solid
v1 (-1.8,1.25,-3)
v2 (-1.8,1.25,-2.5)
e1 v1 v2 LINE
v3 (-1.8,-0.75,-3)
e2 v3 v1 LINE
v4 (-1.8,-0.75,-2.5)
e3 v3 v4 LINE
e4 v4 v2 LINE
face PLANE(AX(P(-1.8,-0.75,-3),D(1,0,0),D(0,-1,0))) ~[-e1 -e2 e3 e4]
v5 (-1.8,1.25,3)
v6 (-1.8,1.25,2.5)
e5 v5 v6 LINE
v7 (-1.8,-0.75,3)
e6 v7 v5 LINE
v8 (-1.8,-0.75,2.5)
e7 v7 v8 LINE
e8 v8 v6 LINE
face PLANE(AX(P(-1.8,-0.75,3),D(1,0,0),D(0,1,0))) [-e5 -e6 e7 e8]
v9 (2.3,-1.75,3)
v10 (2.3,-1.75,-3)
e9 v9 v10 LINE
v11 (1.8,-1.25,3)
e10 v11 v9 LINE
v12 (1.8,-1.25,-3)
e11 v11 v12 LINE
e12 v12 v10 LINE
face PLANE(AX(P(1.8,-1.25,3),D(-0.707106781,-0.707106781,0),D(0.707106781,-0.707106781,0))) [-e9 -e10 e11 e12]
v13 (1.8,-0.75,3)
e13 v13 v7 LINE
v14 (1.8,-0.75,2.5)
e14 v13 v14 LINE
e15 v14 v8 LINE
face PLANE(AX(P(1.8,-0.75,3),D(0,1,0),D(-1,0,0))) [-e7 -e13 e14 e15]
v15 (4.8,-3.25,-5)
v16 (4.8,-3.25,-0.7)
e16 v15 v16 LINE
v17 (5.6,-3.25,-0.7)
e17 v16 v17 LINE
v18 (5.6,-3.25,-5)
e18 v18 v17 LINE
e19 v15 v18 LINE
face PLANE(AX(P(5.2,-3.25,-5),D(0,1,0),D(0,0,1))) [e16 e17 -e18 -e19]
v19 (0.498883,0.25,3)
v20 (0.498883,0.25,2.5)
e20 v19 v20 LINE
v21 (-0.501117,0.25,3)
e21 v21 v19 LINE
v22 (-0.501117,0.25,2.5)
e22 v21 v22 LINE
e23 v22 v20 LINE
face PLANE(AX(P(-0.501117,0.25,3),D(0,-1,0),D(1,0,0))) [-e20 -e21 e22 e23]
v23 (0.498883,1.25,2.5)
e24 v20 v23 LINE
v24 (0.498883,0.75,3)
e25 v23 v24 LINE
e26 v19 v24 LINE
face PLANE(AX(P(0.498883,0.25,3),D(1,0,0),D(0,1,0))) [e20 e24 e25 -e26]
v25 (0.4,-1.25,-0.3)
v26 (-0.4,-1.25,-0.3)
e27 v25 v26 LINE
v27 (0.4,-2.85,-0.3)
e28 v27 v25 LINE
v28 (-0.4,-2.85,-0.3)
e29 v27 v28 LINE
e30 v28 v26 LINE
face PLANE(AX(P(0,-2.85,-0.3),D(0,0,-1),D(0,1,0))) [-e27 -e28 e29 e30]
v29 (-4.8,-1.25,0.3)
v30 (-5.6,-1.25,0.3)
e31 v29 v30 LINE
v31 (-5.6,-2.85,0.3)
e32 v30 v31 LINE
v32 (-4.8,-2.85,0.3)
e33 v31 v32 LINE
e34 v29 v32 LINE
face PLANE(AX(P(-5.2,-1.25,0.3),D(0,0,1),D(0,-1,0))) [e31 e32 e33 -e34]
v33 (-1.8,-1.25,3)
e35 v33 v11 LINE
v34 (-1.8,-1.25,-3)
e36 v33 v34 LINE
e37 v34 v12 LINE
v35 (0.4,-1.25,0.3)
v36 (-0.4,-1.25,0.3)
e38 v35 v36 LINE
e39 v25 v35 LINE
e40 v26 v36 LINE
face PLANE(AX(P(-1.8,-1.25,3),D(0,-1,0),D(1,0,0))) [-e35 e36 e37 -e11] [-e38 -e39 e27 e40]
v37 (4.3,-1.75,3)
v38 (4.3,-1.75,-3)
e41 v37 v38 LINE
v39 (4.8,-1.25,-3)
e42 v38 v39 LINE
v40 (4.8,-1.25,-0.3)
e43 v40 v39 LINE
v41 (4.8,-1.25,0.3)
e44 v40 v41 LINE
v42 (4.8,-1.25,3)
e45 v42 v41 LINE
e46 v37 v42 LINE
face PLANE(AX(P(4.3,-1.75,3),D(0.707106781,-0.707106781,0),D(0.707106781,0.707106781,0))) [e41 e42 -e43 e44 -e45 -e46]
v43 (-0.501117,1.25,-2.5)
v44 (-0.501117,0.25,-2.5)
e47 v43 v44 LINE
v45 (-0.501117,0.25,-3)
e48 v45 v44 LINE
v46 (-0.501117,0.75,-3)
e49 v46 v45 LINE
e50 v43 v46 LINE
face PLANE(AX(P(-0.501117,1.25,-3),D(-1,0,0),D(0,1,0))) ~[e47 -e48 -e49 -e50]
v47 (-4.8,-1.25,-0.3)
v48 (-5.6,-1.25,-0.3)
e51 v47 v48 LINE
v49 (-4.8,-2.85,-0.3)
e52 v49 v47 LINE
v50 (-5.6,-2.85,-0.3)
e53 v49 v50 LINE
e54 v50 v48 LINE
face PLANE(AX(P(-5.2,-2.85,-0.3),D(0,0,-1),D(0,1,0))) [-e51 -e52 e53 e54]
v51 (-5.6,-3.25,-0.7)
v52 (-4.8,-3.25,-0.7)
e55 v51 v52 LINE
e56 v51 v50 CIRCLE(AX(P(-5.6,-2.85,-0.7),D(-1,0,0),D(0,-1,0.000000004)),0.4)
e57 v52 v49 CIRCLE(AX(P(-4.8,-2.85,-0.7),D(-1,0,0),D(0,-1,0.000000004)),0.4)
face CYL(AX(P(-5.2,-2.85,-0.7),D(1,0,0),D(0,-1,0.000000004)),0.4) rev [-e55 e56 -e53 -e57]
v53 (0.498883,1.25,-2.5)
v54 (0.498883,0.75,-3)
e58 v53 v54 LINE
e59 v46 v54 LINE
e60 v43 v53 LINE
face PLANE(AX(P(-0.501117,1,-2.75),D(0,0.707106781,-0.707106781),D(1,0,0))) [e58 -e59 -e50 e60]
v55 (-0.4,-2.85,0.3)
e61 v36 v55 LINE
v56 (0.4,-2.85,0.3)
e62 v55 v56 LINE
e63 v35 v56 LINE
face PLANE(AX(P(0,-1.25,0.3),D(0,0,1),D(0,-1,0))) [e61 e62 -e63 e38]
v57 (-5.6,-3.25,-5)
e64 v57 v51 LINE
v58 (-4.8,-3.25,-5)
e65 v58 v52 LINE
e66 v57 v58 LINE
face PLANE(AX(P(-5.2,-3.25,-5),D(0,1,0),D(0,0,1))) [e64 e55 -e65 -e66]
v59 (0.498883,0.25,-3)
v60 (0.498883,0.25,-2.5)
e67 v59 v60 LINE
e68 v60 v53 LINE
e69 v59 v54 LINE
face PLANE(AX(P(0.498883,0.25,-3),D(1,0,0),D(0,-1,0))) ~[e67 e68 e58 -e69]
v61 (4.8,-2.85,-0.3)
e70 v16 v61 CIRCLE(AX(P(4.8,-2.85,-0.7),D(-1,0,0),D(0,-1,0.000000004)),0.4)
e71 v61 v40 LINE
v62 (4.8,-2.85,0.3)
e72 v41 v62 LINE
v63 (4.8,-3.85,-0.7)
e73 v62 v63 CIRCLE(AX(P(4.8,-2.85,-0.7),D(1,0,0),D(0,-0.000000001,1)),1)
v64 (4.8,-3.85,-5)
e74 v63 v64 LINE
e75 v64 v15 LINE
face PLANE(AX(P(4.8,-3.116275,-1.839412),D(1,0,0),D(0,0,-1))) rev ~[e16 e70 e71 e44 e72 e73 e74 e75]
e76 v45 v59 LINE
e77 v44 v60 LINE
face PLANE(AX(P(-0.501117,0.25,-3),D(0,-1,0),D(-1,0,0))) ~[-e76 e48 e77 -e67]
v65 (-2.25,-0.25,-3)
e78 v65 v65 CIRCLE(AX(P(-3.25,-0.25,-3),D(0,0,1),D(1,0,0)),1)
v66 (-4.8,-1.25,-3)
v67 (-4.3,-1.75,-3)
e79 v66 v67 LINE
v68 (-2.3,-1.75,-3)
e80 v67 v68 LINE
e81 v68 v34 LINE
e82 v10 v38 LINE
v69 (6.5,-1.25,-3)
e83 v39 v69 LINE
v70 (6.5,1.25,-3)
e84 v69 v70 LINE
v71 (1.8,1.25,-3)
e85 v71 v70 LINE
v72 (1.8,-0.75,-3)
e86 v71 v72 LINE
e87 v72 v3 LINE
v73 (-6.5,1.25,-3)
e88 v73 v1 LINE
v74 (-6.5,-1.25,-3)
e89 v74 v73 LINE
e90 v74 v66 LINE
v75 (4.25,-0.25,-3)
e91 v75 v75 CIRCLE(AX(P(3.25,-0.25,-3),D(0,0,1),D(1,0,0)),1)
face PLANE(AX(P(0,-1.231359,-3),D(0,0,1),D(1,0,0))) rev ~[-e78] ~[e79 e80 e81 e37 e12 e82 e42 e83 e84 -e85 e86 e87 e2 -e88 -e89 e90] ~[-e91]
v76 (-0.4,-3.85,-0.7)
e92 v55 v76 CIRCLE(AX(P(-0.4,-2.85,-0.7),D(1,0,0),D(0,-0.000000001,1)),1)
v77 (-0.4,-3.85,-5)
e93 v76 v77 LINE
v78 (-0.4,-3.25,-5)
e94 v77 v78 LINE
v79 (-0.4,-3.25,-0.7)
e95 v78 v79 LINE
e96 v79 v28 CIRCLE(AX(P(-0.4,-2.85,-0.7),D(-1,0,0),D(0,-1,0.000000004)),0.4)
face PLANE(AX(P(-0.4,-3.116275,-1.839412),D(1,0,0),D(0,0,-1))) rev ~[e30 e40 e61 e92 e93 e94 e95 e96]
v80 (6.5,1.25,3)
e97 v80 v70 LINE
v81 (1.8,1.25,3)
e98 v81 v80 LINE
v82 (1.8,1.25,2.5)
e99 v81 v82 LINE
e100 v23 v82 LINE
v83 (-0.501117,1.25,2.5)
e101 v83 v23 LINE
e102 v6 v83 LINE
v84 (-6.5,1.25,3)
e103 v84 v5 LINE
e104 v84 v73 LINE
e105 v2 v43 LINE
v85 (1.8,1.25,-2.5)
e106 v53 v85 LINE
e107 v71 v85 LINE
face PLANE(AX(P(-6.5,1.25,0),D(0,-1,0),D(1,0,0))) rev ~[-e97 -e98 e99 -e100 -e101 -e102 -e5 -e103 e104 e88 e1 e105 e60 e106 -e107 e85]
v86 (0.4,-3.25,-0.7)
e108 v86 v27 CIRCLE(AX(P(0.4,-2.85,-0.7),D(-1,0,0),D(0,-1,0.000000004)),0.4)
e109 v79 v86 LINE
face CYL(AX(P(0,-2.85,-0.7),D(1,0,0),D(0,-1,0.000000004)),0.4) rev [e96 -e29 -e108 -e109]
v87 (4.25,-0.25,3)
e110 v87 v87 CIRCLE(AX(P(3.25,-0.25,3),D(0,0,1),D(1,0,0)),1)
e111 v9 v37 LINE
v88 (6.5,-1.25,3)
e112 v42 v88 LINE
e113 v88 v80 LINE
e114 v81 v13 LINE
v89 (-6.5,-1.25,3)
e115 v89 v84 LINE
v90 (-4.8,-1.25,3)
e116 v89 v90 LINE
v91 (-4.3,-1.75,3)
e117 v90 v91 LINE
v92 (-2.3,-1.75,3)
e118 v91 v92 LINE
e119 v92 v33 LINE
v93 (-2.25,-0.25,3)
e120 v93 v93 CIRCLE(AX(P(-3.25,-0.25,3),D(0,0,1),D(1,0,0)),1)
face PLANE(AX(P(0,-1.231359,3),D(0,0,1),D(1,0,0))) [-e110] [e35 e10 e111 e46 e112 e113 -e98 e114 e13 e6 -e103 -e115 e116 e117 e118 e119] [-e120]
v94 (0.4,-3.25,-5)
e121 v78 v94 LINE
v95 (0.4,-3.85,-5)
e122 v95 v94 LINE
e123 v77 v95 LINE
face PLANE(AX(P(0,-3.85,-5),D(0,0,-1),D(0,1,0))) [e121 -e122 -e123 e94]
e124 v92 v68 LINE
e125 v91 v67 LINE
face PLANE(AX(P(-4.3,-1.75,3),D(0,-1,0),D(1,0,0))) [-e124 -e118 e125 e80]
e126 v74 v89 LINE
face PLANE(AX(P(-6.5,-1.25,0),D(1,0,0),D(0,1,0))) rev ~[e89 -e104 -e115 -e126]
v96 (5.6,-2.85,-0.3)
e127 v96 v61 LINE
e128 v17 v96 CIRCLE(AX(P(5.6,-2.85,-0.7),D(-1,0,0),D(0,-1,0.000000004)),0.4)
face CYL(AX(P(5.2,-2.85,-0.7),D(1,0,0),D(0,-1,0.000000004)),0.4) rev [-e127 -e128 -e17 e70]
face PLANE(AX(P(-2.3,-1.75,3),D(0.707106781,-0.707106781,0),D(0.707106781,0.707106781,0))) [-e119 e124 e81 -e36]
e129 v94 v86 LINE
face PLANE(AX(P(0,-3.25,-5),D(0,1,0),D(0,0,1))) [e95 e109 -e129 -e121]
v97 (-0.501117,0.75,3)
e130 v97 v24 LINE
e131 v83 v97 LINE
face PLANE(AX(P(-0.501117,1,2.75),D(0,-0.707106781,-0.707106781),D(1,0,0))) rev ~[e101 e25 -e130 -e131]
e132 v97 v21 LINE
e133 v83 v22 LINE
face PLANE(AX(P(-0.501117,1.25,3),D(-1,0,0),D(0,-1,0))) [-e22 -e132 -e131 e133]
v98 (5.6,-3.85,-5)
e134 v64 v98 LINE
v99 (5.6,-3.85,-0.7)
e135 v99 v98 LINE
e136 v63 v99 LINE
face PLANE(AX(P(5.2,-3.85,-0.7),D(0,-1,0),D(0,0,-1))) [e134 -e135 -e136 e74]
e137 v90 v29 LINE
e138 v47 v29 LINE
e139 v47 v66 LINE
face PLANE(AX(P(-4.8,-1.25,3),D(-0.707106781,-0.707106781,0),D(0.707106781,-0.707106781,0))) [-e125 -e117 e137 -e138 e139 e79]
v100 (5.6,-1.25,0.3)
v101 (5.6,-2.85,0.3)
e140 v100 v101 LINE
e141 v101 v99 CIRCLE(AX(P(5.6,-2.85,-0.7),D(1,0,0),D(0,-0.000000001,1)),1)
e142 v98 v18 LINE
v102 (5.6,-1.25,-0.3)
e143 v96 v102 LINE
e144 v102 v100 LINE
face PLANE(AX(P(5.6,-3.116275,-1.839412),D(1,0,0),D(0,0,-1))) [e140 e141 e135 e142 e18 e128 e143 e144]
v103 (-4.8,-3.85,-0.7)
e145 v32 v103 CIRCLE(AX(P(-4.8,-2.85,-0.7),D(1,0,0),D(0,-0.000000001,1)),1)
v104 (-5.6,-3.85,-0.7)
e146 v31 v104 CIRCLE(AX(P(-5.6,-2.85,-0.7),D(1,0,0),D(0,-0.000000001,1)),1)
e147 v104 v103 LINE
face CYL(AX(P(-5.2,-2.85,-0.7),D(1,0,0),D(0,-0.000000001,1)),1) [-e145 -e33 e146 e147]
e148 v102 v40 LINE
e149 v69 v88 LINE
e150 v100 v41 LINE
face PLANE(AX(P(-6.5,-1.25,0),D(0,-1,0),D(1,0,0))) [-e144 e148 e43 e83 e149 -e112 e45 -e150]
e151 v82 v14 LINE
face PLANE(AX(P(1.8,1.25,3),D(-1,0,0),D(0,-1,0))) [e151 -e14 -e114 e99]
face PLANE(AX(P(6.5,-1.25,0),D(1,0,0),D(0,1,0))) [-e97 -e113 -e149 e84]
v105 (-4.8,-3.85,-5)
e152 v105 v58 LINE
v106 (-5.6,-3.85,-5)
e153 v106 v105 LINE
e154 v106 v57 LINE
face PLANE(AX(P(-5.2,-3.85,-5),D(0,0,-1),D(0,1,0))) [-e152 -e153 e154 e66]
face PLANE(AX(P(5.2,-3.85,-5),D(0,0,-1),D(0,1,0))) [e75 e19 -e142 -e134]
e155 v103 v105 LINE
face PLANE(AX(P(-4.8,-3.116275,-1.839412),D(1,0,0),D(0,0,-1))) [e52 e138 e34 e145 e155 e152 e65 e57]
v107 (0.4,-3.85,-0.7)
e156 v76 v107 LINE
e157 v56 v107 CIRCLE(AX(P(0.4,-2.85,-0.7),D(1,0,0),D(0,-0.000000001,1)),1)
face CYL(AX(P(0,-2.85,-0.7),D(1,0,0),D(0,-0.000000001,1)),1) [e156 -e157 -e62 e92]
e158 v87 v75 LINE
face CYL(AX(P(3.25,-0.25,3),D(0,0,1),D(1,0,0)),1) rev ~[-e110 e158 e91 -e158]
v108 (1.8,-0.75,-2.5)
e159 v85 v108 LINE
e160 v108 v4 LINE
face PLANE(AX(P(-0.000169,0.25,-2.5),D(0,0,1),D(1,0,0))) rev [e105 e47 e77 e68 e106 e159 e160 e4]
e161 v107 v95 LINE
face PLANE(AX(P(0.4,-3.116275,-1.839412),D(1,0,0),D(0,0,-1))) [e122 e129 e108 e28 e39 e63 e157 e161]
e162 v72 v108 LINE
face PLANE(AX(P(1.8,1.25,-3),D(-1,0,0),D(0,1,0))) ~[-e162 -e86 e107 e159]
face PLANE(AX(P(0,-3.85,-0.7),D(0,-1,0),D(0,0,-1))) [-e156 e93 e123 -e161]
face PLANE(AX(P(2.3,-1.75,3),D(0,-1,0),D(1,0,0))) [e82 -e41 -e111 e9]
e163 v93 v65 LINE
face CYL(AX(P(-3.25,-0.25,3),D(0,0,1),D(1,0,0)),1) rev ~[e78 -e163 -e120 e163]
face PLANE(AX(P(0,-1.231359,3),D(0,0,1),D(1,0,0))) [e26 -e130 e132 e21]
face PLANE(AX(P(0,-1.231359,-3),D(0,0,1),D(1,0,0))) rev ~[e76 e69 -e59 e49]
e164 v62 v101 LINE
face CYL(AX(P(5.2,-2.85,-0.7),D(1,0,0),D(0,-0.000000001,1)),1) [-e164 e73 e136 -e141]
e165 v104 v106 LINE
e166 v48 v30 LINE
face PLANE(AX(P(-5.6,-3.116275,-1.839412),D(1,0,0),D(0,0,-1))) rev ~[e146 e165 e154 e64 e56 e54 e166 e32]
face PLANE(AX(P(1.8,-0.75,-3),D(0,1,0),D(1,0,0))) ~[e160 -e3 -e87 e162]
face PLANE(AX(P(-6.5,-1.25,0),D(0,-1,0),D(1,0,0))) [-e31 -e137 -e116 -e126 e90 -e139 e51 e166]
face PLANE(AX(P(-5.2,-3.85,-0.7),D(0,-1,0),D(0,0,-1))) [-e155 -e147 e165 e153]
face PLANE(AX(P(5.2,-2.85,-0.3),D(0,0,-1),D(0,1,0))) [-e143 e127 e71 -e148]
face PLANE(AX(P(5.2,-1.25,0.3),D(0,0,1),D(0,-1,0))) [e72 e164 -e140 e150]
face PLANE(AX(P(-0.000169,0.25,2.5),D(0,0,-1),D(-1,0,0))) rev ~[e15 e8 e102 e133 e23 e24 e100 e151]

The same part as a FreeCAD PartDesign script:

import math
import FreeCAD as App
import Part
import Sketcher
from FreeCAD import Vector


def edges_at(feature, points):
    """Names of the edges that pass closest to the given points."""
    edges = feature.Shape.Edges
    near = lambda p: min(range(len(edges)), key=lambda i: edges[i].distToShape(Part.Vertex(*p))[0])
    return sorted({f"Edge{near(p) + 1}" for p in points})


def add_polygon(sketch, points):
    """Adds a closed chain of lines whose ends are joined by coincident constraints."""
    first, n = sketch.GeometryCount, len(points)
    for a, b in zip(points, points[1:] + points[:1]):
        sketch.addGeometry(Part.LineSegment(App.Vector(*a, 0), App.Vector(*b, 0)), False)
    for i in range(n):
        sketch.addConstraint(Sketcher.Constraint("Coincident", first + i, 2, first + (i + 1) % n, 1))

doc = App.newDocument("Part")
body = doc.addObject("PartDesign::Body", "Body")

# Sketch on XY plane
sketch1 = body.newObject("Sketcher::SketchObject", "Sketch")
sketch1.AttachmentSupport = (doc.getObject("XY_Plane"), [""])
sketch1.MapMode = "FlatFace"
add_polygon(sketch1, [(-6.5, 1.2), (-6.5, -1.2), (6.5, -1.2), (6.5, 1.2)])  # lines 0-3
sketch1.addConstraint([
    Sketcher.Constraint("Vertical", 0),
    Sketcher.Constraint("Horizontal", 1),
    Sketcher.Constraint("Vertical", 2),
    Sketcher.Constraint("Horizontal", 3),
    Sketcher.Constraint("Symmetric", 0, 2, 2, 2, -1, 1),
    Sketcher.Constraint("DistanceX", 1, 1, 1, 2, 13.0),
    Sketcher.Constraint("DistanceY", 0, 2, 0, 1, 2.5),
])
pad1 = body.newObject("PartDesign::Pad", "Pad")
pad1.Profile = sketch1
pad1.Length = 6
pad1.Midplane = True

# Sketch on XY plane
sketch2 = body.newObject("Sketcher::SketchObject", "Sketch001")
sketch2.AttachmentSupport = (doc.getObject("XY_Plane"), [""])
sketch2.MapMode = "FlatFace"
sketch2.AttachmentOffset = App.Placement(Vector(0, 0, 3), App.Rotation())
add_polygon(sketch2, [(-4.8, -1.25), (-4.3, -1.75), (-2.3, -1.75), (-1.8, -1.25), (1.8, -1.25), (2.3, -1.75), (4.3, -1.75), (4.8, -1.25), (4.8, -0.94), (-4.8, -0.94)])  # lines 0-9
sketch2.addConstraint([
    Sketcher.Constraint("Horizontal", 1),
    Sketcher.Constraint("Horizontal", 3),
    Sketcher.Constraint("Horizontal", 5),
    Sketcher.Constraint("Vertical", 7),
    Sketcher.Constraint("Horizontal", 8),
    Sketcher.Constraint("Vertical", 9),
    Sketcher.Constraint("Symmetric", 1, 2, 4, 2, -2),
    Sketcher.Constraint("Symmetric", 6, 2, 9, 2, -2),
    Sketcher.Constraint("Perpendicular", 0, 2),
    Sketcher.Constraint("Perpendicular", 2, 4),
    Sketcher.Constraint("Perpendicular", 4, 6),
    Sketcher.Constraint("Horizontal", 3, 2, 6, 2),
    Sketcher.Constraint("Equal", 1, 5),
    Sketcher.Constraint("DistanceX", 1, 1, 1, 2, 2.0),
    Sketcher.Constraint("DistanceX", 3, 1, 3, 2, 3.6),
    Sketcher.Constraint("DistanceX", 8, 2, 8, 1, 9.6),
    Sketcher.Constraint("DistanceY", 0, 2, -1, 1, 1.75),
    Sketcher.Constraint("DistanceY", 7, 1, 7, 2, 0.311956),
])
pad2 = body.newObject("PartDesign::Pad", "Pad001")
pad2.Profile = sketch2
pad2.Length = 6
pad2.Reversed = True

# Sketch on XY plane
sketch3 = body.newObject("Sketcher::SketchObject", "Sketch002")
sketch3.AttachmentSupport = (doc.getObject("XY_Plane"), [""])
sketch3.MapMode = "FlatFace"
sketch3.AttachmentOffset = App.Placement(Vector(0, 0, 3), App.Rotation())
sketch3.addGeometry([
    Part.Circle(Vector(-3.2, -0.2, 0), Vector(0, 0, 1), 1),
    Part.Circle(Vector(3.2, -0.2, 0), Vector(0, 0, 1), 1),
], False)
sketch3.addConstraint([
    Sketcher.Constraint("Equal", 0, 1),
    Sketcher.Constraint("Symmetric", 0, 3, 1, 3, -2),
    Sketcher.Constraint("Diameter", 0, 2.0),
    Sketcher.Constraint("DistanceX", 0, 3, 1, 3, 6.5),
    Sketcher.Constraint("DistanceY", 0, 3, -1, 1, 0.25),
])
pocket1 = body.newObject("PartDesign::Pocket", "Pocket")
pocket1.Profile = sketch3
pocket1.Type = "ThroughAll"

# Sketch on XY plane
sketch4 = body.newObject("Sketcher::SketchObject", "Sketch003")
sketch4.AttachmentSupport = (doc.getObject("XY_Plane"), [""])
sketch4.MapMode = "FlatFace"
sketch4.AttachmentOffset = App.Placement(Vector(0, 0, 3), App.Rotation())
add_polygon(sketch4, [(-0.5, 1.2), (-1.8, 1.2), (-1.8, -0.8), (1.8, -0.8), (1.8, 1.2), (0.5, 1.2), (0.5, 0.2), (-0.5, 0.2)])  # lines 0-7
sketch4.addConstraint([
    Sketcher.Constraint("Horizontal", 0),
    Sketcher.Constraint("Vertical", 1),
    Sketcher.Constraint("Horizontal", 2),
    Sketcher.Constraint("Vertical", 3),
    Sketcher.Constraint("Horizontal", 4),
    Sketcher.Constraint("Vertical", 5),
    Sketcher.Constraint("Horizontal", 6),
    Sketcher.Constraint("Vertical", 7),
    Sketcher.Constraint("Symmetric", 0, 2, 3, 2, -2),
    Sketcher.Constraint("Equal", 6, 5),
    Sketcher.Constraint("DistanceX", 6, 2, 6, 1, 1.0),
    Sketcher.Constraint("DistanceY", 1, 2, 1, 1, 2.0),
    Sketcher.Constraint("DistanceX", 2, 1, 2, 2, 3.6),
    Sketcher.Constraint("DistanceY", -1, 1, 0, 2, 1.25),
    Sketcher.Constraint("DistanceX", 0, 2, 0, 1, 1.298883),
])
pocket2 = body.newObject("PartDesign::Pocket", "Pocket001")
pocket2.Profile = sketch4
pocket2.Length = 0.5
doc.recompute()

mirrored = body.newObject("PartDesign::Mirrored", "Mirrored")
mirrored.Originals = [pocket2]
mirrored.MirrorPlane = (doc.getObject("XY_Plane"), [""])
body.Tip = mirrored
doc.recompute()

chamfer = body.newObject("PartDesign::Chamfer", "Chamfer")
chamfer.Base = (mirrored, edges_at(mirrored, [(-0.001, 1.25, 3), (-0.001, 1.25, -3)]))
chamfer.Size = 0.5

# Sketch on YZ plane
sketch5 = body.newObject("Sketcher::SketchObject", "Sketch004")
sketch5.AttachmentSupport = (doc.getObject("YZ_Plane"), [""])
sketch5.MapMode = "FlatFace"
sketch5.addGeometry([
    Part.LineSegment(Vector(-1.25, 0.3, 0), Vector(-2.85, 0.3, 0)),  # 0
    Part.ArcOfCircle(Part.Circle(Vector(-2.85, -0.7, 0), Vector(0, 0, 1), 1), math.radians(90), math.radians(180)),  # 1
    Part.LineSegment(Vector(-3.85, -0.7, 0), Vector(-3.85, -5, 0)),  # 2
    Part.LineSegment(Vector(-3.85, -5, 0), Vector(-3.25, -5, 0)),  # 3
    Part.LineSegment(Vector(-3.25, -5, 0), Vector(-3.25, -0.7, 0)),  # 4
    Part.ArcOfCircle(Part.Circle(Vector(-2.85, -0.7, 0), Vector(0, 0, 1), 0.4), math.radians(90), math.radians(180)),  # 5
    Part.LineSegment(Vector(-2.85, -0.3, 0), Vector(-1.25, -0.3, 0)),  # 6
    Part.LineSegment(Vector(-1.25, -0.3, 0), Vector(-1.25, 0.3, 0)),  # 7
], False)
sketch5.addConstraint([
    Sketcher.Constraint("Tangent", 0, 2, 1, 1),
    Sketcher.Constraint("Tangent", 1, 2, 2, 1),
    Sketcher.Constraint("Coincident", 2, 2, 3, 1),
    Sketcher.Constraint("Coincident", 3, 2, 4, 1),
    Sketcher.Constraint("Tangent", 4, 2, 5, 2),
    Sketcher.Constraint("Tangent", 5, 1, 6, 1),
    Sketcher.Constraint("Coincident", 6, 2, 7, 1),
    Sketcher.Constraint("Coincident", 7, 2, 0, 1),
    Sketcher.Constraint("Horizontal", 0),
    Sketcher.Constraint("Vertical", 2),
    Sketcher.Constraint("Horizontal", 3),
    Sketcher.Constraint("Vertical", 4),
    Sketcher.Constraint("Horizontal", 6),
    Sketcher.Constraint("Vertical", 7),
    Sketcher.Constraint("Coincident", 5, 3, 1, 3),
    Sketcher.Constraint("Radius", 1, 1.0),
    Sketcher.Constraint("Radius", 5, 0.4),
    Sketcher.Constraint("DistanceX", 0, 2, 0, 1, 1.6),
    Sketcher.Constraint("DistanceY", 2, 2, 2, 1, 4.3),
    Sketcher.Constraint("DistanceY", 2, 2, -1, 1, 5.0),
    Sketcher.Constraint("DistanceX", 1, 3, -1, 1, 2.85),
])
pad3 = body.newObject("PartDesign::Pad", "Pad002")
pad3.Profile = sketch5
pad3.Length = 0.8
pad3.Midplane = True
doc.recompute()

linearpattern = body.newObject("PartDesign::LinearPattern", "LinearPattern")
linearpattern.Originals = [pad3]
linearpattern.Direction = (doc.getObject("X_Axis"), [""])
linearpattern.Mode = "offset"
linearpattern.Offset = 5.2
linearpattern.Occurrences = 2
linearpattern.Reversed = True
body.Tip = linearpattern
doc.recompute()

linearpattern2 = body.newObject("PartDesign::LinearPattern", "LinearPattern001")
linearpattern2.Originals = [pad3]
linearpattern2.Direction = (doc.getObject("X_Axis"), [""])
linearpattern2.Mode = "offset"
linearpattern2.Offset = 5.2
linearpattern2.Occurrences = 2
body.Tip = linearpattern2

doc.recompute()
